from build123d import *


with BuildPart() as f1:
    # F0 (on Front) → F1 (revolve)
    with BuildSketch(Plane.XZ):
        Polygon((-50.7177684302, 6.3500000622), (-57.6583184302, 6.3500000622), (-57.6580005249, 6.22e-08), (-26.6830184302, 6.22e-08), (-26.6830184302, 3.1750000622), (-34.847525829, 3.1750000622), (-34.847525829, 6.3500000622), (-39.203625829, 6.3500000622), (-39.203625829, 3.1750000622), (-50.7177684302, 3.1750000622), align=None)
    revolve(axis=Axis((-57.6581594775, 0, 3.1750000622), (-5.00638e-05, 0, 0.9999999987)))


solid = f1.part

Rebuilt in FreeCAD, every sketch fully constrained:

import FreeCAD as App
import Part
import Sketcher
Q = App.Units.Quantity


def add_polygon(sketch, points):
    """Adds a closed chain of lines whose ends are joined by coincident constraints."""
    first, n = sketch.GeometryCount, len(points)
    for a, b in zip(points, points[1:] + points[:1]):
        sketch.addGeometry(Part.LineSegment(App.Vector(*a, 0), App.Vector(*b, 0)), False)
    for i in range(n):
        sketch.addConstraint(Sketcher.Constraint("Coincident", first + i, 2, first + (i + 1) % n, 1))

doc = App.newDocument("Part")
params = doc.addObject("Spreadsheet::Sheet", "Params")
for row, (alias, value) in enumerate([
    ("sketch1_length", "0.25 in"),
    ("revolution_angle", "360 deg"),
], start=1):
    params.set(f"A{row}", alias)
    params.set(f"B{row}", "=" + value)
    params.setAlias(f"B{row}", alias)

body = doc.addObject("PartDesign::Body", "Body")

sketch1 = body.newObject("Sketcher::SketchObject", "Sketch")
sketch1.AttachmentSupport = (doc.getObject("XZ_Plane"), [""])
sketch1.MapMode = "FlatFace"
add_polygon(sketch1, [(-50.7, 6.4), (-57.7, 6.4), (-57.7, 0), (-26.7, 0), (-26.7, 3.2), (-34.8, 3.2), (-34.8, 6.4), (-39.2, 6.4), (-39.2, 3.2), (-50.7, 3.2)])
sketch1.addGeometry(Part.LineSegment(App.Vector(-57.7, 0, 0), App.Vector(-57.7, 6.4, 0)), True)
sketch1.addConstraint([
    Sketcher.Constraint("Horizontal", 0),
    Sketcher.Constraint("Horizontal", 2),
    Sketcher.Constraint("Vertical", 3),
    Sketcher.Constraint("Horizontal", 4),
    Sketcher.Constraint("Vertical", 5),
    Sketcher.Constraint("Horizontal", 6),
    Sketcher.Constraint("Vertical", 7),
    Sketcher.Constraint("Horizontal", 8),
    Sketcher.Constraint("Vertical", 9),
    Sketcher.Constraint("Coincident", 10, 2, 0, 2),
    Sketcher.Constraint("PointOnObject", 1, 2, -1),
    Sketcher.Constraint("Parallel", 1, 10),
    Sketcher.Constraint("Horizontal", 0, 2, 5, 2),
    Sketcher.Constraint("Horizontal", 4, 2, 7, 2),
    Sketcher.Constraint("Equal", 3, 5),
    Sketcher.Constraint("Distance", 1, Q("0.25 in")),
    Sketcher.Constraint("DistanceX", 1, 2, -1, 1, Q("2.27 in")),
    Sketcher.Constraint("DistanceX", 6, 2, 6, 1, Q("0.1715 in")),
    Sketcher.Constraint("DistanceX", 0, 2, 2, 2, Q("1.2195 in")),
    Sketcher.Constraint("DistanceX", 0, 2, 0, 1, 6.94055),
    Sketcher.Constraint("Distance", 10, 6.351551),
    Sketcher.Constraint("DistanceX", 2, 1, 2, 2, 30.974982),
    Sketcher.Constraint("DistanceX", 4, 2, 4, 1, 8.164507),
])
sketch1.setExpression("Constraints[25]", "Params.sketch1_length")
revolution = body.newObject("PartDesign::Revolution", "Revolution")
revolution.Profile = sketch1
revolution.ReferenceAxis = (sketch1, ["Axis0"])
revolution.setExpression("Angle", "Params.revolution_angle")

doc.recompute()
